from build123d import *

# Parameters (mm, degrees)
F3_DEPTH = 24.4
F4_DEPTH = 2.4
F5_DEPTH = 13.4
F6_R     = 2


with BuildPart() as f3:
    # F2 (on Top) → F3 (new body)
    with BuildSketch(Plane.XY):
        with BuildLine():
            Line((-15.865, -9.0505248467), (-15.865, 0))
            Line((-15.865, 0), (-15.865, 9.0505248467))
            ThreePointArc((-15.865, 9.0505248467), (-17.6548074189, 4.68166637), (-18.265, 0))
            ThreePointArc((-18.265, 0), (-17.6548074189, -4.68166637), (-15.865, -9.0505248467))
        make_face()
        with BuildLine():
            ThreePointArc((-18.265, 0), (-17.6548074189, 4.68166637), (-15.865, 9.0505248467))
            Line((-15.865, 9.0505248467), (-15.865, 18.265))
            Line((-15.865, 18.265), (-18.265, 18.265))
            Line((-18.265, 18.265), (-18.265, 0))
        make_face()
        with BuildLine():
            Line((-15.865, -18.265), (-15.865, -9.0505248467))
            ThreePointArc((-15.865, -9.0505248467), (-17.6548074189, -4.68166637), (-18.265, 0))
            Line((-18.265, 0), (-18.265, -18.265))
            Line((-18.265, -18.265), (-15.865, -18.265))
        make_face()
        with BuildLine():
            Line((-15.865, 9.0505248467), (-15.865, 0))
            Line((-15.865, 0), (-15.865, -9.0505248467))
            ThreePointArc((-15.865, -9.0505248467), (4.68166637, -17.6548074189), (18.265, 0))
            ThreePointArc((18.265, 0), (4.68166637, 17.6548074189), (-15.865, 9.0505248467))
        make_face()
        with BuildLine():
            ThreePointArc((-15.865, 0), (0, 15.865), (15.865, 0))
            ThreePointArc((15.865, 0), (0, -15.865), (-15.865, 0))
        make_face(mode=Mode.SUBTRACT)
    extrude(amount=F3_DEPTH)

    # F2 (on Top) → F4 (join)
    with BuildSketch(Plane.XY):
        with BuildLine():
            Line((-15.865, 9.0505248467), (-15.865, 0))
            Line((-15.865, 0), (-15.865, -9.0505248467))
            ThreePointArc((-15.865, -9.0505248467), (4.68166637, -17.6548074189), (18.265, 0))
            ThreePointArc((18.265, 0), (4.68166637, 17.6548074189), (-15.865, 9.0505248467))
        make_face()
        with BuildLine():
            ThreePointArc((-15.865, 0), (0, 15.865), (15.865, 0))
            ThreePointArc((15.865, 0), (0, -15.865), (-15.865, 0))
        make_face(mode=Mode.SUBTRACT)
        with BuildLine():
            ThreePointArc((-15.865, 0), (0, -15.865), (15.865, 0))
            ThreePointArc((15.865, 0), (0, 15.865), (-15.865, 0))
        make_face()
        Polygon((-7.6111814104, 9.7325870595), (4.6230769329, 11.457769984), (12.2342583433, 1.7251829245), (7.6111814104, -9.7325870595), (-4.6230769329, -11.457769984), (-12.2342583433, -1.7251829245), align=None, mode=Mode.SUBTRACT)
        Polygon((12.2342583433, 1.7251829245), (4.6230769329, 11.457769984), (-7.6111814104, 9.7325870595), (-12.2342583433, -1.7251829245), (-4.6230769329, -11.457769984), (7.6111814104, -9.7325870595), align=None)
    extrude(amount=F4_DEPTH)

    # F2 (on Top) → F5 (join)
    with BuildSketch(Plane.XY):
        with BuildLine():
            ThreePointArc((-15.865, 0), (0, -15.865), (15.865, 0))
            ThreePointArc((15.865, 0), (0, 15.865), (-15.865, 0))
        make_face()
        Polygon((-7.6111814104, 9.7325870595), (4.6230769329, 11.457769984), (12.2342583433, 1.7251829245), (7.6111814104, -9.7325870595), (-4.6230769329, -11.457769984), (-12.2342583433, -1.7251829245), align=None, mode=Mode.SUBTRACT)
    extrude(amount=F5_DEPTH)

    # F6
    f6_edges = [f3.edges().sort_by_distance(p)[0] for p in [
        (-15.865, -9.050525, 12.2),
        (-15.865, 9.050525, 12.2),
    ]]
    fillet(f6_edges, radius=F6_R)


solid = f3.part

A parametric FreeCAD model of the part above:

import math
import FreeCAD as App
import Part
import Sketcher
Q = App.Units.Quantity


def edges_at(feature, points):
    """Names of the edges that pass closest to the given points."""
    edges = feature.Shape.Edges
    near = lambda p: min(range(len(edges)), key=lambda i: edges[i].distToShape(Part.Vertex(*p))[0])
    return sorted({f"Edge{near(p) + 1}" for p in points})


def add_polygon(sketch, points):
    """Adds a closed chain of lines whose ends are joined by coincident constraints."""
    first, n = sketch.GeometryCount, len(points)
    for a, b in zip(points, points[1:] + points[:1]):
        sketch.addGeometry(Part.LineSegment(App.Vector(*a, 0), App.Vector(*b, 0)), False)
    for i in range(n):
        sketch.addConstraint(Sketcher.Constraint("Coincident", first + i, 2, first + (i + 1) % n, 1))

doc = App.newDocument("Part")
body = doc.addObject("PartDesign::Body", "Body")

# Sketch on XY plane
sketch1 = body.newObject("Sketcher::SketchObject", "Sketch")
sketch1.AttachmentSupport = (doc.getObject("XY_Plane"), [""])
sketch1.MapMode = "FlatFace"
sketch1.addGeometry([
    Part.LineSegment(App.Vector(-15.9, 18.3, 0), App.Vector(-18.3, 18.3, 0)),  # 0
    Part.LineSegment(App.Vector(-18.3, 18.3, 0), App.Vector(-18.3, -18.3, 0)),  # 1
    Part.LineSegment(App.Vector(-18.3, -18.3, 0), App.Vector(-15.9, -18.3, 0)),  # 2
    Part.LineSegment(App.Vector(-15.9, -18.3, 0), App.Vector(-15.9, -9.1, 0)),  # 3
    Part.ArcOfCircle(Part.Circle(App.Vector(0, 0, 0), App.Vector(0, 0, 1), 18.3), math.radians(-150), math.radians(0)),  # 4
    Part.ArcOfCircle(Part.Circle(App.Vector(0, 0, 0), App.Vector(0, 0, 1), 18.3), math.radians(0), math.radians(150)),  # 5
    Part.LineSegment(App.Vector(-15.9, 9.1, 0), App.Vector(-15.9, 18.3, 0)),  # 6
    Part.Circle(App.Vector(0, 0, 0), App.Vector(0, 0, 1), 15.9),  # 7
], False)
sketch1.addConstraint([
    Sketcher.Constraint("Coincident", 0, 2, 1, 1),
    Sketcher.Constraint("Coincident", 1, 2, 2, 1),
    Sketcher.Constraint("Coincident", 2, 2, 3, 1),
    Sketcher.Constraint("Coincident", 3, 2, 4, 1),
    Sketcher.Constraint("Tangent", 4, 2, 5, 1),
    Sketcher.Constraint("Coincident", 5, 2, 6, 1),
    Sketcher.Constraint("Coincident", 6, 2, 0, 1),
    Sketcher.Constraint("Horizontal", 0),
    Sketcher.Constraint("Vertical", 1),
    Sketcher.Constraint("Horizontal", 2),
    Sketcher.Constraint("Vertical", 3),
    Sketcher.Constraint("Vertical", 6),
    Sketcher.Constraint("Coincident", 4, 3, -1, 1),
    Sketcher.Constraint("Coincident", 7, 3, -1, 1),
    Sketcher.Constraint("Equal", 4, 5),
    Sketcher.Constraint("Symmetric", 2, 2, 6, 2, -1),
    Sketcher.Constraint("PointOnObject", 4, 2, -1),
    Sketcher.Constraint("Diameter", 7, Q("31.73 mm")),
    Sketcher.Constraint("DistanceX", 0, 2, 0, 1, Q("2.4 mm")),
    Sketcher.Constraint("Radius", 4, Q("18.265 mm")),
    Sketcher.Constraint("DistanceY", 1, 2, 1, 1, Q("36.53 mm")),
    Sketcher.Constraint("DistanceX", 3, 2, 4, 2, Q("34.13 mm")),
])
pad1 = body.newObject("PartDesign::Pad", "Pad")
pad1.Profile = sketch1
pad1.Length = 24.4

# Sketch on XY plane
sketch2 = body.newObject("Sketcher::SketchObject", "Sketch001")
sketch2.AttachmentSupport = (doc.getObject("XY_Plane"), [""])
sketch2.MapMode = "FlatFace"
sketch2.addGeometry([
    Part.ArcOfCircle(Part.Circle(App.Vector(0, 0, 0), App.Vector(0, 0, 1), 18), math.radians(-150), math.radians(0)),
    Part.ArcOfCircle(Part.Circle(App.Vector(0, 0, 0), App.Vector(0, 0, 1), 18), math.radians(0), math.radians(150)),
    Part.LineSegment(App.Vector(-16, 9, 0), App.Vector(-16, -9, 0)),
], False)
sketch2.addConstraint([
    Sketcher.Constraint("Tangent", 0, 2, 1, 1),
    Sketcher.Constraint("Coincident", 1, 2, 2, 1),
    Sketcher.Constraint("Coincident", 2, 2, 0, 1),
    Sketcher.Constraint("Vertical", 2),
    Sketcher.Constraint("Coincident", 0, 3, -1, 1),
    Sketcher.Constraint("Equal", 0, 1),
    Sketcher.Constraint("PointOnObject", 0, 2, -1),
    Sketcher.Constraint("Radius", 0, Q("18.265 mm")),
    Sketcher.Constraint("DistanceX", 1, 2, 0, 2, Q("34.13 mm")),
])
pad2 = body.newObject("PartDesign::Pad", "Pad001")
pad2.Profile = sketch2
pad2.Length = 2.4

# Sketch on XY plane
sketch3 = body.newObject("Sketcher::SketchObject", "Sketch002")
sketch3.AttachmentSupport = (doc.getObject("XY_Plane"), [""])
sketch3.MapMode = "FlatFace"
sketch3.addGeometry(Part.Circle(App.Vector(0, 0, 0), App.Vector(0, 0, 1), 16), False)  # 0
add_polygon(sketch3, [(-12, -2), (-8, 10), (5, 11), (12, 2), (8, -10), (-5, -11)])  # lines 1-6
sketch3.addConstraint([
    Sketcher.Constraint("Coincident", 0, 3, -1, 1),
    Sketcher.Constraint("Symmetric", 1, 2, 4, 2, -1, 1),
    Sketcher.Constraint("Symmetric", 2, 2, 5, 2, -1, 1),
    Sketcher.Constraint("Symmetric", 3, 2, 6, 2, -1, 1),
    Sketcher.Constraint("Equal", 1, 2),
    Sketcher.Constraint("Equal", 2, 3),
    Sketcher.Constraint("Diameter", 0, Q("31.73 mm")),
    Sketcher.Constraint("DistanceX", 1, 2, -1, 1, Q("7.611181 mm")),
    Sketcher.Constraint("DistanceY", -1, 1, 2, 2, Q("11.45777 mm")),
    Sketcher.Constraint("DistanceX", -1, 1, 3, 2, Q("12.234258 mm")),
    Sketcher.Constraint("DistanceX", 1, 2, 2, 2, Q("12.234258 mm")),
])
pad3 = body.newObject("PartDesign::Pad", "Pad002")
pad3.Profile = sketch3
pad3.Length = 13.4
doc.recompute()

fillet = body.newObject("PartDesign::Fillet", "Fillet")
fillet.Base = (pad3, edges_at(pad3, [(-15.865, -9.051, 12.2), (-15.865, 9.051, 12.2)]))
fillet.Radius = 2

doc.recompute()
